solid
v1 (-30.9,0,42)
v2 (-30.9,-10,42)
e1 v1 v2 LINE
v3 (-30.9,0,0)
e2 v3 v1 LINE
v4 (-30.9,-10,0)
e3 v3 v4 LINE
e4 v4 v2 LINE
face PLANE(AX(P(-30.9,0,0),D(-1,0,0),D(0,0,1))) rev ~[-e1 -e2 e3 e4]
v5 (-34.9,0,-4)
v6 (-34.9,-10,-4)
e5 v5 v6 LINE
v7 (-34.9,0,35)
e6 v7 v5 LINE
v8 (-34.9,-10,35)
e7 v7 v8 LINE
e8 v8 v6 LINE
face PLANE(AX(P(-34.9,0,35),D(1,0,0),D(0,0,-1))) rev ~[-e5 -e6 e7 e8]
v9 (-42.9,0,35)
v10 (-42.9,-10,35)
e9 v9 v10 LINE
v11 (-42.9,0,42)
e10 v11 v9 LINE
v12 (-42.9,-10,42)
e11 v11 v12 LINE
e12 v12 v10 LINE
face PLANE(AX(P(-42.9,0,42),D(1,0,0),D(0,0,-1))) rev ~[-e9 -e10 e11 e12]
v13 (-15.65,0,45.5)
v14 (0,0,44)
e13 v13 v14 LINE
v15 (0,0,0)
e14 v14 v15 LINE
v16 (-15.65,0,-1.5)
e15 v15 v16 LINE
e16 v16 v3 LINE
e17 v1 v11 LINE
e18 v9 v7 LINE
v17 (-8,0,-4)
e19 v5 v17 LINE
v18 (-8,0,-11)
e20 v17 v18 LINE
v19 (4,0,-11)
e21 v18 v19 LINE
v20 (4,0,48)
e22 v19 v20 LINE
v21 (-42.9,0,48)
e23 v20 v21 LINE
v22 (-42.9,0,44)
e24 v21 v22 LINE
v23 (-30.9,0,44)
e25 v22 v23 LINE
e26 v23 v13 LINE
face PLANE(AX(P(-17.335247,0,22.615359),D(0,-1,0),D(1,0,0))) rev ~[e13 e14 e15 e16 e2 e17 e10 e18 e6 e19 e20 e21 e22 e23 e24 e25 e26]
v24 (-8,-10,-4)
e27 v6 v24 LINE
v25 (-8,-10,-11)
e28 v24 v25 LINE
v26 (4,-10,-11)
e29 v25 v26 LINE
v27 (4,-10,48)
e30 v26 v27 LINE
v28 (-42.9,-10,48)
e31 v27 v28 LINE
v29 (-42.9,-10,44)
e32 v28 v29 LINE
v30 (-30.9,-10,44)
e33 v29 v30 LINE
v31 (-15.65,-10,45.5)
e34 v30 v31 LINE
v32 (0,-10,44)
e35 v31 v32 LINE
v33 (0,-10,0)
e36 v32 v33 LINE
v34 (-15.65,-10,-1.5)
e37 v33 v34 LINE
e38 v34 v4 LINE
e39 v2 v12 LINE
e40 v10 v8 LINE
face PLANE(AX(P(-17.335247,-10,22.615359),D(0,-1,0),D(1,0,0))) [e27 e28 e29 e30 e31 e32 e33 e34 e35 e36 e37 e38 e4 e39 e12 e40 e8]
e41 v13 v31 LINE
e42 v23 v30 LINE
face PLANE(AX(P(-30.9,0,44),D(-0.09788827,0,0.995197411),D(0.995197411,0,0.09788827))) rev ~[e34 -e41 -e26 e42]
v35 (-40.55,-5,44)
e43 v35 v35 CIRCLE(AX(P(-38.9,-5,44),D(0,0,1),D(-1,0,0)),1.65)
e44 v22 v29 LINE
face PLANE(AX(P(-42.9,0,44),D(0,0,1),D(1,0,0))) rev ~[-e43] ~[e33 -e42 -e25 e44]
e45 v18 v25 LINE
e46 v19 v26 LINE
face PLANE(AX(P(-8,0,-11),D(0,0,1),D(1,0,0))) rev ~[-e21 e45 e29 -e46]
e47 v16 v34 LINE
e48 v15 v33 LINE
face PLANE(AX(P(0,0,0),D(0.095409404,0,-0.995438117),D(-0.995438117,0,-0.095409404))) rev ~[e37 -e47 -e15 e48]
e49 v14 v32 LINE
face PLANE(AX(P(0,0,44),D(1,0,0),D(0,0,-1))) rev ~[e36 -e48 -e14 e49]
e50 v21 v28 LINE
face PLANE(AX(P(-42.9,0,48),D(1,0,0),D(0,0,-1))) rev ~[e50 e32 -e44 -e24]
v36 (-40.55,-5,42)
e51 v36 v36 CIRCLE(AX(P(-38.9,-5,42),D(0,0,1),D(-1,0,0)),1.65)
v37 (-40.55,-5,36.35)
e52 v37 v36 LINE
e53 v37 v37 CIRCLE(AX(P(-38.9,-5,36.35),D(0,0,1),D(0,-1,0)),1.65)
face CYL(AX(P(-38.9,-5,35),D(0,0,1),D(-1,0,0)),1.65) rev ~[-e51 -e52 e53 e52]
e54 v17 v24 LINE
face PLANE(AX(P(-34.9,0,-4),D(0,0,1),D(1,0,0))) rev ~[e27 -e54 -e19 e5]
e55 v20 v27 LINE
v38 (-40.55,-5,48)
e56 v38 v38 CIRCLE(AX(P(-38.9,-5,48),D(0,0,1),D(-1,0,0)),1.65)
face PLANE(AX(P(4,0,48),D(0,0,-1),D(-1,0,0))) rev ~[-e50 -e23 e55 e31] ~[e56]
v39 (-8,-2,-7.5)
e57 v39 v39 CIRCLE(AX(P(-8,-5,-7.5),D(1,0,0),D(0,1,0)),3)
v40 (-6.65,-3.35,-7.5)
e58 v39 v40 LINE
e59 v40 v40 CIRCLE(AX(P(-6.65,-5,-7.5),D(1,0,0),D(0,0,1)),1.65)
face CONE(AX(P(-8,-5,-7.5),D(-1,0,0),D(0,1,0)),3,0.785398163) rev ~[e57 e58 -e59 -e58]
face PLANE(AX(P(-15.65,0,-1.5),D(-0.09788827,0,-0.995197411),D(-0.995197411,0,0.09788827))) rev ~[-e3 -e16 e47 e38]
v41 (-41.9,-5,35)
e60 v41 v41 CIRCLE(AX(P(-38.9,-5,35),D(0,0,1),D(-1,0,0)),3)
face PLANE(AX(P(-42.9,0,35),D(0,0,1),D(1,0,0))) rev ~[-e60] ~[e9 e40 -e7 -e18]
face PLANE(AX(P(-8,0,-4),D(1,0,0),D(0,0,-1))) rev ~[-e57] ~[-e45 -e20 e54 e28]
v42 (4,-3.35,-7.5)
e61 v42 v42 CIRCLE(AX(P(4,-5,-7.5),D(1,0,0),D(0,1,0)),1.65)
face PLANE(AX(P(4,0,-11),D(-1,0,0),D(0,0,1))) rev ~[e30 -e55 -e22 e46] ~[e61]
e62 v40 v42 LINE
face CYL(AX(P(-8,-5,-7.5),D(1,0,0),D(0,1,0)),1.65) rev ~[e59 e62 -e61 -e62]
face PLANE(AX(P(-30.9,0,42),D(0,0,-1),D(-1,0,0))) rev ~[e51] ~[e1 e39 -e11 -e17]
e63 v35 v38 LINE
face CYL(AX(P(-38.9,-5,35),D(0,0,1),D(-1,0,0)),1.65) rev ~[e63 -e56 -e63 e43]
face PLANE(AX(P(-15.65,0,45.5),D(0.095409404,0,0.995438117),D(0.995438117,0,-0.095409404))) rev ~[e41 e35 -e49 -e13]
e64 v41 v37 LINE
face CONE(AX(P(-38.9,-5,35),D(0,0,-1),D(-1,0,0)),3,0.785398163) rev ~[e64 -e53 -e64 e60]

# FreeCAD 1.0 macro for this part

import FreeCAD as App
import Part
import Sketcher

V = App.Vector


def add_polygon(sketch, points):
    """Adds a closed chain of lines whose ends are joined by coincident constraints."""
    first, n = sketch.GeometryCount, len(points)
    for a, b in zip(points, points[1:] + points[:1]):
        sketch.addGeometry(Part.LineSegment(App.Vector(*a, 0), App.Vector(*b, 0)), False)
    for i in range(n):
        sketch.addConstraint(Sketcher.Constraint("Coincident", first + i, 2, first + (i + 1) % n, 1))

doc = App.newDocument("Part")
body = doc.addObject("PartDesign::Body", "Body")

# Sketch on XZ plane
sketch1 = body.newObject("Sketcher::SketchObject", "Sketch")
sketch1.AttachmentSupport = (doc.getObject("XZ_Plane"), [""])
sketch1.MapMode = "FlatFace"
add_polygon(sketch1, [(0, 44), (0, 0), (-15.65, -1.5), (-30.9, 0), (-30.9, 42), (-42.9, 42), (-42.9, 35), (-34.9, 35), (-34.9, -4), (-8, -4), (-8, -11), (4, -11), (4, 48), (-42.9, 48), (-42.9, 44), (-30.9, 44), (-15.65, 45.5)])  # lines 0-16
sketch1.addConstraint([
    Sketcher.Constraint("Vertical", 0),
    Sketcher.Constraint("Vertical", 3),
    Sketcher.Constraint("Horizontal", 4),
    Sketcher.Constraint("Vertical", 5),
    Sketcher.Constraint("Horizontal", 6),
    Sketcher.Constraint("Vertical", 7),
    Sketcher.Constraint("Horizontal", 8),
    Sketcher.Constraint("Vertical", 9),
    Sketcher.Constraint("Horizontal", 10),
    Sketcher.Constraint("Vertical", 11),
    Sketcher.Constraint("Horizontal", 12),
    Sketcher.Constraint("Vertical", 13),
    Sketcher.Constraint("Horizontal", 14),
    Sketcher.Constraint("Coincident", 0, 2, -1, 1),
    Sketcher.Constraint("PointOnObject", 2, 2, -1),
    Sketcher.Constraint("Horizontal", 14, 2, 16, 2),
    Sketcher.Constraint("Vertical", 5, 2, 12, 2),
    Sketcher.Constraint("Vertical", 3, 2, 14, 2),
    Sketcher.Constraint("Vertical", 1, 2, 15, 2),
    Sketcher.Constraint("Equal", 4, 10),
    Sketcher.Constraint("Equal", 5, 9),
    Sketcher.Constraint("Equal", 2, 15),
    Sketcher.Constraint("DistanceX", 4, 2, 4, 1, 12.0),
    Sketcher.Constraint("DistanceX", 6, 1, 6, 2, 8.0),
    Sketcher.Constraint("DistanceY", 0, 2, 0, 1, 44.0),
    Sketcher.Constraint("DistanceY", 3, 1, 3, 2, 42.0),
    Sketcher.Constraint("DistanceY", 5, 2, 5, 1, 7.0),
    Sketcher.Constraint("DistanceY", 7, 2, 7, 1, 39.0),
    Sketcher.Constraint("DistanceY", 11, 1, 11, 2, 59.0),
    Sketcher.Constraint("DistanceX", 8, 1, 8, 2, 26.9),
    Sketcher.Constraint("DistanceX", 8, 2, -1, 1, 8.0),
    Sketcher.Constraint("DistanceY", 1, 2, -1, 1, 1.5),
    Sketcher.Constraint("DistanceX", 1, 2, -1, 1, 15.65),
])
pad1 = body.newObject("PartDesign::Pad", "Pad")
pad1.Profile = sketch1
pad1.Length = 10

# Sketch on XY plane
sketch2 = body.newObject("Sketcher::SketchObject", "Sketch001")
sketch2.AttachmentSupport = (doc.getObject("XY_Plane"), [""])
sketch2.MapMode = "FlatFace"
sketch2.AttachmentOffset = App.Placement(V(0, 0, 35), App.Rotation())
sketch2.addGeometry(Part.Circle(V(-38.9, -5, 0), V(0, 0, 1), 1.65), False)
sketch2.addConstraint([
    Sketcher.Constraint("Diameter", 0, 3.3),
    Sketcher.Constraint("DistanceY", 0, 3, -1, 1, 5.0),
    Sketcher.Constraint("DistanceX", 0, 3, -1, 1, 38.9),
])
doc.recompute()
hole = body.newObject("PartDesign::Hole", "Hole")
hole.Profile = sketch2
hole.ThreadType = "None"
hole.Diameter = 3.3
hole.DepthType = "ThroughAll"
hole.HoleCutType = "Countersink"
hole.HoleCutDiameter = 6
hole.HoleCutCountersinkAngle = 90
hole.Reversed = True

# Sketch on YZ plane
sketch3 = body.newObject("Sketcher::SketchObject", "Sketch002")
sketch3.AttachmentSupport = (doc.getObject("YZ_Plane"), [""])
sketch3.MapMode = "FlatFace"
sketch3.AttachmentOffset = App.Placement(V(0, 0, -8), App.Rotation())
sketch3.addGeometry(Part.Circle(V(-5, -7.5, 0), V(0, 0, 1), 1.65), False)
sketch3.addConstraint([
    Sketcher.Constraint("Diameter", 0, 3.3),
    Sketcher.Constraint("DistanceX", 0, 3, -1, 1, 5.0),
    Sketcher.Constraint("DistanceY", 0, 3, -1, 1, 7.5),
])
doc.recompute()
hole2 = body.newObject("PartDesign::Hole", "Hole001")
hole2.Profile = sketch3
hole2.ThreadType = "None"
hole2.Diameter = 3.3
hole2.DepthType = "ThroughAll"
hole2.HoleCutType = "Countersink"
hole2.HoleCutDiameter = 6
hole2.HoleCutCountersinkAngle = 90
hole2.Reversed = True

doc.recompute()
